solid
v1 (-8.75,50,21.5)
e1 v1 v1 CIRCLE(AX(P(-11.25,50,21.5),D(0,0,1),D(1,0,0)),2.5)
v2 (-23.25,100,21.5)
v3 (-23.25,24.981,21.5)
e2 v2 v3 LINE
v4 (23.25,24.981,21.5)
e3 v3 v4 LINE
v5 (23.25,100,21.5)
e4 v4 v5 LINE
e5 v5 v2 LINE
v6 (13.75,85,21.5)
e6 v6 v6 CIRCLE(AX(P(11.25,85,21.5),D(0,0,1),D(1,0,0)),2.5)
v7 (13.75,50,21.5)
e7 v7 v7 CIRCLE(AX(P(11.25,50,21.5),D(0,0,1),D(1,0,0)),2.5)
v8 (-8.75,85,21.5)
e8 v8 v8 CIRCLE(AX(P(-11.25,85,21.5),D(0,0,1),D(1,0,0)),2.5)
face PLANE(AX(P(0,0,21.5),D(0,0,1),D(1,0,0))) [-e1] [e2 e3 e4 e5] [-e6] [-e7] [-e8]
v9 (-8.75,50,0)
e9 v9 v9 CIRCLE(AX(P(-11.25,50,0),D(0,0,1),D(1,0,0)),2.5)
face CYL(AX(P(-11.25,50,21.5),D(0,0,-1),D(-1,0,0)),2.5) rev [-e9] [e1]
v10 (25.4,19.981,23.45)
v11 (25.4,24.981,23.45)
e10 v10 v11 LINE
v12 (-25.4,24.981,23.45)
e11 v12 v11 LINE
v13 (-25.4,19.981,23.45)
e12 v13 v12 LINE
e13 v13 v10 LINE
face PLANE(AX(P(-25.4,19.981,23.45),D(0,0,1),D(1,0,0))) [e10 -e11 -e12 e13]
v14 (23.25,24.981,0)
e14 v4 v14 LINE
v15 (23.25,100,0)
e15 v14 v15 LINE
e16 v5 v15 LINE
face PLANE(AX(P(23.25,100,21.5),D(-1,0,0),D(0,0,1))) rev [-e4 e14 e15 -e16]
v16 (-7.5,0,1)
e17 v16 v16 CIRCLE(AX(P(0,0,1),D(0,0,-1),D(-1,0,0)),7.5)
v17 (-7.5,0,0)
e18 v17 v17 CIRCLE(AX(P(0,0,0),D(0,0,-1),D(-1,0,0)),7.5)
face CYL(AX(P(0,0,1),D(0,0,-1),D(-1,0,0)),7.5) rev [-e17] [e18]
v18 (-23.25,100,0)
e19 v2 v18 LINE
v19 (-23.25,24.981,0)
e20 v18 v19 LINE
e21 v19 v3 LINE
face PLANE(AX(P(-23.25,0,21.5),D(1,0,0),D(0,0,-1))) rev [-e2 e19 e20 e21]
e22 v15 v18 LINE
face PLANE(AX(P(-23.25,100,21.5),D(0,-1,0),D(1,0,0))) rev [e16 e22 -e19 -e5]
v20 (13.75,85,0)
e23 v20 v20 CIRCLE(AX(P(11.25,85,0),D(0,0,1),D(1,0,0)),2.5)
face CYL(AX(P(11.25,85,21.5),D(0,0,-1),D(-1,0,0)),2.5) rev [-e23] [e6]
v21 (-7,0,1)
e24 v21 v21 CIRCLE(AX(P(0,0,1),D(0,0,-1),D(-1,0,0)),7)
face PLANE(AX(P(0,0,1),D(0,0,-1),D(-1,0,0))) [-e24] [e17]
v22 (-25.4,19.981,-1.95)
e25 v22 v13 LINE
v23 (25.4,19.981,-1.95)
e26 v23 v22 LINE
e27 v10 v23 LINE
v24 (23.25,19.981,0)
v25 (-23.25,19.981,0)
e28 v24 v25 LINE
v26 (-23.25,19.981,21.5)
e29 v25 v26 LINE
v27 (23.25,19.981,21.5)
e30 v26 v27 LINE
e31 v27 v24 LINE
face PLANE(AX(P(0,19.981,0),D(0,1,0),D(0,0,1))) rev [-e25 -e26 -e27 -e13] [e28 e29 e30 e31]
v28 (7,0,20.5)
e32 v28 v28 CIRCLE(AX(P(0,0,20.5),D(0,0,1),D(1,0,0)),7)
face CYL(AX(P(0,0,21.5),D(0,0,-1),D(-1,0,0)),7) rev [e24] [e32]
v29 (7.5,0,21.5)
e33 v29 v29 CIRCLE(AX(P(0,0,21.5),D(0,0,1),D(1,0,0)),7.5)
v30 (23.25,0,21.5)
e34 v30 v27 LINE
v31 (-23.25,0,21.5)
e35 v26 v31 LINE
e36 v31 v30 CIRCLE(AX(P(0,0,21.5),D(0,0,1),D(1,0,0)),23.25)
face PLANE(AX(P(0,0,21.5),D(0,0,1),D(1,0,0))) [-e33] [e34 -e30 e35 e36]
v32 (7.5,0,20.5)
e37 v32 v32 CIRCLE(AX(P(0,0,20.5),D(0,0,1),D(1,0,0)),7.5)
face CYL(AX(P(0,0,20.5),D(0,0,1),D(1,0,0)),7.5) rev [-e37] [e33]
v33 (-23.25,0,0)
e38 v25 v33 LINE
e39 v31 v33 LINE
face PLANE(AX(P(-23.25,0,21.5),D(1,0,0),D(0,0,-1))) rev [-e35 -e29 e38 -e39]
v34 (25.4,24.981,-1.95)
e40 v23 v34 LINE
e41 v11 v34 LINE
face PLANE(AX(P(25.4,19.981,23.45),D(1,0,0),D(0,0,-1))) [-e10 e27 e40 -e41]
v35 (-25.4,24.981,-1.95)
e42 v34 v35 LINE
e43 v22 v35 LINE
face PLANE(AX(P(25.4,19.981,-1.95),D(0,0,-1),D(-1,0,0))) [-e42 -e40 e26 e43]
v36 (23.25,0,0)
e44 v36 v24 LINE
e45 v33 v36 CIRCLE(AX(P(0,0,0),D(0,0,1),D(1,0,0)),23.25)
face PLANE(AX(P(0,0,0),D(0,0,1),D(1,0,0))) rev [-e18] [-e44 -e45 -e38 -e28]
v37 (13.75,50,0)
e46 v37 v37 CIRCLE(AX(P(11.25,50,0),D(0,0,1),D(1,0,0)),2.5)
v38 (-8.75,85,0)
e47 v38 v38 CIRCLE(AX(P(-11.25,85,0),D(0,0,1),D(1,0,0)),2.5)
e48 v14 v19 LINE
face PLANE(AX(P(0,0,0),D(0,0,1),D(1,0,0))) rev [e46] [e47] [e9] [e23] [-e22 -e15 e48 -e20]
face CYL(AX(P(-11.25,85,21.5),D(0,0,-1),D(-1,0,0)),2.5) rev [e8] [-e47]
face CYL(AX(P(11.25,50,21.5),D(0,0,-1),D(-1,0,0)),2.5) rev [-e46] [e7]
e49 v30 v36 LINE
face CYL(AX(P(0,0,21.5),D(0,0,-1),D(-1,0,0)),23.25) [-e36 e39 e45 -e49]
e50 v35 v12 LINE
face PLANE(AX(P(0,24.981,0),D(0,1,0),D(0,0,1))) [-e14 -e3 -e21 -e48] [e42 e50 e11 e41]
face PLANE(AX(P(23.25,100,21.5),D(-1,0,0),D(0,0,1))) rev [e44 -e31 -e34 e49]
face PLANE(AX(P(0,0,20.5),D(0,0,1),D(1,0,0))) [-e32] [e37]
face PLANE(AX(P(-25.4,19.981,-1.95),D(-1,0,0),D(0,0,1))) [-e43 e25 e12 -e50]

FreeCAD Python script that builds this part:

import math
import FreeCAD as App
import Part
import Sketcher
from FreeCAD import Vector

doc = App.newDocument("Part")
body = doc.addObject("PartDesign::Body", "Body")

sketch1 = body.newObject("Sketcher::SketchObject", "Sketch")
sketch1.AttachmentSupport = (doc.getObject("XY_Plane"), [""])
sketch1.MapMode = "FlatFace"
sketch1.addGeometry(Part.LineSegment(Vector(-23.25, 100, 0), Vector(-23.25, 0, 0)), False)
sketch1.addGeometry(Part.ArcOfCircle(Part.Circle(Vector(0, 0, 0), Vector(0, 0, 1), 23.25), math.radians(180), math.radians(360)), False)
sketch1.addGeometry(Part.LineSegment(Vector(23.25, 0, 0), Vector(23.25, 100, 0)), False)
sketch1.addGeometry(Part.LineSegment(Vector(23.25, 100, 0), Vector(-23.25, 100, 0)), False)
sketch1.addGeometry(Part.Circle(Vector(0, 0, 0), Vector(0, 0, 1), 7), False)
sketch1.addGeometry(Part.Circle(Vector(11.25, 50, 0), Vector(0, 0, 1), 2.5), False)
sketch1.addGeometry(Part.Circle(Vector(11.25, 85, 0), Vector(0, 0, 1), 2.5), False)
sketch1.addGeometry(Part.Circle(Vector(-11.25, 50, 0), Vector(0, 0, 1), 2.5), False)
sketch1.addGeometry(Part.Circle(Vector(-11.25, 85, 0), Vector(0, 0, 1), 2.5), False)
sketch1.addConstraint(Sketcher.Constraint("Tangent", 0, 2, 1, 1))
sketch1.addConstraint(Sketcher.Constraint("Tangent", 1, 2, 2, 1))
sketch1.addConstraint(Sketcher.Constraint("Coincident", 2, 2, 3, 1))
sketch1.addConstraint(Sketcher.Constraint("Coincident", 3, 2, 0, 1))
sketch1.addConstraint(Sketcher.Constraint("Vertical", 0))
sketch1.addConstraint(Sketcher.Constraint("Vertical", 2))
sketch1.addConstraint(Sketcher.Constraint("Horizontal", 3))
sketch1.addConstraint(Sketcher.Constraint("Coincident", 1, 3, -1, 1))
sketch1.addConstraint(Sketcher.Constraint("Coincident", 4, 3, -1, 1))
sketch1.addConstraint(Sketcher.Constraint("Equal", 5, 6))
sketch1.addConstraint(Sketcher.Constraint("Equal", 6, 7))
sketch1.addConstraint(Sketcher.Constraint("Equal", 7, 8))
sketch1.addConstraint(Sketcher.Constraint("Symmetric", 5, 3, 7, 3, -2))
sketch1.addConstraint(Sketcher.Constraint("Symmetric", 6, 3, 8, 3, -2))
sketch1.addConstraint(Sketcher.Constraint("Vertical", 5, 3, 6, 3))
sketch1.addConstraint(Sketcher.Constraint("Diameter", 4, 14.0))
sketch1.addConstraint(Sketcher.Constraint("Diameter", 5, 5.0))
sketch1.addConstraint(Sketcher.Constraint("DistanceY", 0, 2, 0, 1, 100.0))
sketch1.addConstraint(Sketcher.Constraint("Radius", 1, 23.25))
sketch1.addConstraint(Sketcher.Constraint("DistanceY", -1, 1, 5, 3, 50.0))
sketch1.addConstraint(Sketcher.Constraint("DistanceY", -1, 1, 6, 3, 85.0))
sketch1.addConstraint(Sketcher.Constraint("DistanceX", 0, 2, 7, 3, 12.0))
pad1 = body.newObject("PartDesign::Pad", "Pad")
pad1.Profile = sketch1
pad1.Length = 21.5

sketch2 = body.newObject("Sketcher::SketchObject", "Sketch001")
sketch2.AttachmentSupport = (doc.getObject("XY_Plane"), [""])
sketch2.MapMode = "FlatFace"
sketch2.AttachmentOffset = App.Placement(Vector(0, 0, 21.5), App.Rotation())
sketch2.addGeometry(Part.Circle(Vector(0, 0, 0), Vector(0, 0, 1), 7.5), False)
sketch2.addConstraint(Sketcher.Constraint("Coincident", 0, 3, -1, 1))
sketch2.addConstraint(Sketcher.Constraint("Diameter", 0, 15.0))
pocket1 = body.newObject("PartDesign::Pocket", "Pocket")
pocket1.Profile = sketch2
pocket1.Length = 1

sketch3 = body.newObject("Sketcher::SketchObject", "Sketch002")
sketch3.AttachmentSupport = (doc.getObject("XY_Plane"), [""])
sketch3.MapMode = "FlatFace"
sketch3.AttachmentOffset = App.Placement(Vector(0, 0, 1), App.Rotation())
sketch3.addGeometry(Part.Circle(Vector(0, 0, 0), Vector(0, 0, 1), 7.5), False)
sketch3.addConstraint(Sketcher.Constraint("Coincident", 0, 3, -1, 1))
sketch3.addConstraint(Sketcher.Constraint("Diameter", 0, 15.0))
pocket2 = body.newObject("PartDesign::Pocket", "Pocket001")
pocket2.Profile = sketch3
pocket2.Length = 1

sketch4 = body.newObject("Sketcher::SketchObject", "Sketch003")
sketch4.AttachmentSupport = (doc.getObject("XZ_Plane"), [""])
sketch4.MapMode = "FlatFace"
sketch4.AttachmentOffset = App.Placement(Vector(0, 0, -24.981), App.Rotation())
sketch4.addGeometry(Part.LineSegment(Vector(-25.4, -1.95, 0), Vector(-25.4, 23.45, 0)), False)
sketch4.addGeometry(Part.LineSegment(Vector(-25.4, 23.45, 0), Vector(25.4, 23.45, 0)), False)
sketch4.addGeometry(Part.LineSegment(Vector(25.4, 23.45, 0), Vector(25.4, -1.95, 0)), False)
sketch4.addGeometry(Part.LineSegment(Vector(25.4, -1.95, 0), Vector(-25.4, -1.95, 0)), False)
sketch4.addGeometry(Part.LineSegment(Vector(23.25, 21.5, 0), Vector(-23.25, 21.5, 0)), False)
sketch4.addGeometry(Part.LineSegment(Vector(-23.25, 21.5, 0), Vector(-23.25, 0, 0)), False)
sketch4.addGeometry(Part.LineSegment(Vector(-23.25, 0, 0), Vector(23.25, 0, 0)), False)
sketch4.addGeometry(Part.LineSegment(Vector(23.25, 0, 0), Vector(23.25, 21.5, 0)), False)
sketch4.addConstraint(Sketcher.Constraint("Coincident", 0, 2, 1, 1))
sketch4.addConstraint(Sketcher.Constraint("Coincident", 1, 2, 2, 1))
sketch4.addConstraint(Sketcher.Constraint("Coincident", 2, 2, 3, 1))
sketch4.addConstraint(Sketcher.Constraint("Coincident", 3, 2, 0, 1))
sketch4.addConstraint(Sketcher.Constraint("Coincident", 4, 2, 5, 1))
sketch4.addConstraint(Sketcher.Constraint("Coincident", 5, 2, 6, 1))
sketch4.addConstraint(Sketcher.Constraint("Coincident", 6, 2, 7, 1))
sketch4.addConstraint(Sketcher.Constraint("Coincident", 7, 2, 4, 1))
sketch4.addConstraint(Sketcher.Constraint("Vertical", 0))
sketch4.addConstraint(Sketcher.Constraint("Horizontal", 1))
sketch4.addConstraint(Sketcher.Constraint("Vertical", 2))
sketch4.addConstraint(Sketcher.Constraint("Horizontal", 3))
sketch4.addConstraint(Sketcher.Constraint("Horizontal", 4))
sketch4.addConstraint(Sketcher.Constraint("Vertical", 5))
sketch4.addConstraint(Sketcher.Constraint("Horizontal", 6))
sketch4.addConstraint(Sketcher.Constraint("Vertical", 7))
sketch4.addConstraint(Sketcher.Constraint("Symmetric", 5, 2, 6, 2, -1, 1))
sketch4.addConstraint(Sketcher.Constraint("DistanceX", 1, 1, 1, 2, 50.8))
sketch4.addConstraint(Sketcher.Constraint("DistanceX", 4, 2, 4, 1, 46.5))
sketch4.addConstraint(Sketcher.Constraint("DistanceY", 0, 1, 0, 2, 25.4))
sketch4.addConstraint(Sketcher.Constraint("DistanceY", 5, 2, 5, 1, 21.5))
sketch4.addConstraint(Sketcher.Constraint("DistanceX", 0, 2, -1, 1, 25.4))
sketch4.addConstraint(Sketcher.Constraint("DistanceY", -1, 1, 0, 2, 23.45))
pad2 = body.newObject("PartDesign::Pad", "Pad001")
pad2.Profile = sketch4
pad2.Length = 5

doc.recompute()
